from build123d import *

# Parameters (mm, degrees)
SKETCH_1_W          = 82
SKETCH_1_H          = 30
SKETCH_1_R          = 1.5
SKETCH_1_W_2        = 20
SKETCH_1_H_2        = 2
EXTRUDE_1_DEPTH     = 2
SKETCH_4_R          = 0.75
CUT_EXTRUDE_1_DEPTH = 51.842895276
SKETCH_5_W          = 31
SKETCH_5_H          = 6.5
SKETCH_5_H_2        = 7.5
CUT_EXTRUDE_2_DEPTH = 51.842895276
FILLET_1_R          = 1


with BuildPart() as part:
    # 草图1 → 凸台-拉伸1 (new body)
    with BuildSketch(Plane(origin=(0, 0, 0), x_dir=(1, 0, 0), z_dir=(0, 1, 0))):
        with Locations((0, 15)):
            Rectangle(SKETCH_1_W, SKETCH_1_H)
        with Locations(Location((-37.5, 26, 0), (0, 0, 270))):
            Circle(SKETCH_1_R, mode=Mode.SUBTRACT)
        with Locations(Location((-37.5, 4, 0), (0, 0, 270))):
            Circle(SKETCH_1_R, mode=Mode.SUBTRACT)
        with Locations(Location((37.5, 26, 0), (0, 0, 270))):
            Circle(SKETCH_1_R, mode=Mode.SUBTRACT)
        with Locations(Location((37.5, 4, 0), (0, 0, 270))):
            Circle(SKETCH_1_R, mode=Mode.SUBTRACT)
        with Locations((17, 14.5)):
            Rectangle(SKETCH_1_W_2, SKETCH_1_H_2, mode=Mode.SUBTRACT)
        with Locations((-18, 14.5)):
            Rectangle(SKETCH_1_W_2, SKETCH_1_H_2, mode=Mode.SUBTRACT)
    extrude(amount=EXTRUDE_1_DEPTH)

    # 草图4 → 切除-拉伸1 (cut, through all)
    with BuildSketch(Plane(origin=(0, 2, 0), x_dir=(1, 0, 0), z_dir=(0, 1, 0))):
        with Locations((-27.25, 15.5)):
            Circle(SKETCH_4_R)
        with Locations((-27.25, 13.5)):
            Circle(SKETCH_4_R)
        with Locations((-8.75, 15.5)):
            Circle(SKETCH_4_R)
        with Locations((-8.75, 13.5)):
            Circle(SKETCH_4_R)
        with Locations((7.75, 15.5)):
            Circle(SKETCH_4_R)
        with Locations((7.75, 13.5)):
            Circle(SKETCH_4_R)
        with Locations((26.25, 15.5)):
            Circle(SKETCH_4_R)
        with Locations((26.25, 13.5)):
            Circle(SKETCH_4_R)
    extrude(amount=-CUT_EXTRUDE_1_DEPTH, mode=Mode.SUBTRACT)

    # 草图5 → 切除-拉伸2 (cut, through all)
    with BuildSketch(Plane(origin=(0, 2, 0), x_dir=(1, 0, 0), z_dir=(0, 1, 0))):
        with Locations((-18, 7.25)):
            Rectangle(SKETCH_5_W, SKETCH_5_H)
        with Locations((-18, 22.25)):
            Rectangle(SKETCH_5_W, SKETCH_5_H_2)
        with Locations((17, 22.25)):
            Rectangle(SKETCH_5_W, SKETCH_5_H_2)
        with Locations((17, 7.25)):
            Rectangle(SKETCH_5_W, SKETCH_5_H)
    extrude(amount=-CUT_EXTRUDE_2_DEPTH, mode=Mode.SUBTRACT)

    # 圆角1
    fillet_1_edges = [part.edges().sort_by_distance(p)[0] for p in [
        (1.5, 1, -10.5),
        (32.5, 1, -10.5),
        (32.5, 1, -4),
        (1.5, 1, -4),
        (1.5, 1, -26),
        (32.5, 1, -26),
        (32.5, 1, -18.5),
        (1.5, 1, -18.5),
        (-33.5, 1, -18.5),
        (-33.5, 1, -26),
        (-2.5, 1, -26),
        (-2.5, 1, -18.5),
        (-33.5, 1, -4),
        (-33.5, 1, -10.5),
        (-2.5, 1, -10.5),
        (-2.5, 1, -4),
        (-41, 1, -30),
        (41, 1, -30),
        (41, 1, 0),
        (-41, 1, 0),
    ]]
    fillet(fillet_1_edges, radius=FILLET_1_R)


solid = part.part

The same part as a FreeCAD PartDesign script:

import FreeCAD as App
import Part
import Sketcher

V = App.Vector
Q = App.Units.Quantity


def edges_at(feature, points):
    """Names of the edges that pass closest to the given points."""
    edges = feature.Shape.Edges
    near = lambda p: min(range(len(edges)), key=lambda i: edges[i].distToShape(Part.Vertex(*p))[0])
    return sorted({f"Edge{near(p) + 1}" for p in points})

doc = App.newDocument("Part")
body = doc.addObject("PartDesign::Body", "Body")

sketch1 = body.newObject("Sketcher::SketchObject", "Sketch")
sketch1.AttachmentSupport = (doc.getObject("XZ_Plane"), [""])
sketch1.MapMode = "FlatFace"
sketch1.addGeometry(Part.LineSegment(V(-41, -30, 0), V(-41, 0, 0)), False)
sketch1.addGeometry(Part.LineSegment(V(-41, 0, 0), V(41, 0, 0)), False)
sketch1.addGeometry(Part.LineSegment(V(41, 0, 0), V(41, -30, 0)), False)
sketch1.addGeometry(Part.LineSegment(V(41, -30, 0), V(-41, -30, 0)), False)
sketch1.addGeometry(Part.Circle(V(-37.5, -4, 0), V(0, 0, 1), 1.5), False)
sketch1.addGeometry(Part.LineSegment(V(-8, -13.5, 0), V(-28, -13.5, 0)), False)
sketch1.addGeometry(Part.LineSegment(V(-28, -13.5, 0), V(-28, -15.5, 0)), False)
sketch1.addGeometry(Part.LineSegment(V(-28, -15.5, 0), V(-8, -15.5, 0)), False)
sketch1.addGeometry(Part.LineSegment(V(-8, -15.5, 0), V(-8, -13.5, 0)), False)
sketch1.addGeometry(Part.Circle(V(37.5, -4, 0), V(0, 0, 1), 1.5), False)
sketch1.addGeometry(Part.LineSegment(V(27, -13.5, 0), V(7, -13.5, 0)), False)
sketch1.addGeometry(Part.LineSegment(V(7, -13.5, 0), V(7, -15.5, 0)), False)
sketch1.addGeometry(Part.LineSegment(V(7, -15.5, 0), V(27, -15.5, 0)), False)
sketch1.addGeometry(Part.LineSegment(V(27, -15.5, 0), V(27, -13.5, 0)), False)
sketch1.addGeometry(Part.Circle(V(-37.5, -26, 0), V(0, 0, 1), 1.5), False)
sketch1.addGeometry(Part.Circle(V(37.5, -26, 0), V(0, 0, 1), 1.5), False)
sketch1.addConstraint(Sketcher.Constraint("Coincident", 0, 2, 1, 1))
sketch1.addConstraint(Sketcher.Constraint("Coincident", 1, 2, 2, 1))
sketch1.addConstraint(Sketcher.Constraint("Coincident", 2, 2, 3, 1))
sketch1.addConstraint(Sketcher.Constraint("Coincident", 3, 2, 0, 1))
sketch1.addConstraint(Sketcher.Constraint("Coincident", 5, 2, 6, 1))
sketch1.addConstraint(Sketcher.Constraint("Coincident", 6, 2, 7, 1))
sketch1.addConstraint(Sketcher.Constraint("Coincident", 7, 2, 8, 1))
sketch1.addConstraint(Sketcher.Constraint("Coincident", 8, 2, 5, 1))
sketch1.addConstraint(Sketcher.Constraint("Coincident", 10, 2, 11, 1))
sketch1.addConstraint(Sketcher.Constraint("Coincident", 11, 2, 12, 1))
sketch1.addConstraint(Sketcher.Constraint("Coincident", 12, 2, 13, 1))
sketch1.addConstraint(Sketcher.Constraint("Coincident", 13, 2, 10, 1))
sketch1.addConstraint(Sketcher.Constraint("Vertical", 0))
sketch1.addConstraint(Sketcher.Constraint("Horizontal", 1))
sketch1.addConstraint(Sketcher.Constraint("Vertical", 2))
sketch1.addConstraint(Sketcher.Constraint("Horizontal", 3))
sketch1.addConstraint(Sketcher.Constraint("Horizontal", 5))
sketch1.addConstraint(Sketcher.Constraint("Vertical", 6))
sketch1.addConstraint(Sketcher.Constraint("Horizontal", 7))
sketch1.addConstraint(Sketcher.Constraint("Vertical", 8))
sketch1.addConstraint(Sketcher.Constraint("Horizontal", 10))
sketch1.addConstraint(Sketcher.Constraint("Vertical", 11))
sketch1.addConstraint(Sketcher.Constraint("Horizontal", 12))
sketch1.addConstraint(Sketcher.Constraint("Vertical", 13))
sketch1.addConstraint(Sketcher.Constraint("Equal", 4, 9))
sketch1.addConstraint(Sketcher.Constraint("Equal", 9, 14))
sketch1.addConstraint(Sketcher.Constraint("Equal", 14, 15))
sketch1.addConstraint(Sketcher.Constraint("Symmetric", 0, 2, 1, 2, -1, 1))
sketch1.addConstraint(Sketcher.Constraint("Symmetric", 4, 3, 9, 3, -2))
sketch1.addConstraint(Sketcher.Constraint("Symmetric", 14, 3, 15, 3, -2))
sketch1.addConstraint(Sketcher.Constraint("Horizontal", 8, 2, 10, 2))
sketch1.addConstraint(Sketcher.Constraint("Horizontal", 7, 2, 11, 2))
sketch1.addConstraint(Sketcher.Constraint("Vertical", 4, 3, 14, 3))
sketch1.addConstraint(Sketcher.Constraint("Equal", 7, 10))
sketch1.addConstraint(Sketcher.Constraint("Diameter", 4, Q("3 mm")))
sketch1.addConstraint(Sketcher.Constraint("DistanceX", 1, 1, 1, 2, Q("82 mm")))
sketch1.addConstraint(Sketcher.Constraint("DistanceX", 5, 2, 5, 1, Q("20 mm")))
sketch1.addConstraint(Sketcher.Constraint("DistanceY", 0, 1, 0, 2, Q("30 mm")))
sketch1.addConstraint(Sketcher.Constraint("DistanceY", 6, 2, 6, 1, Q("2 mm")))
sketch1.addConstraint(Sketcher.Constraint("DistanceY", 4, 3, -1, 1, Q("4 mm")))
sketch1.addConstraint(Sketcher.Constraint("DistanceY", 14, 3, -1, 1, Q("26 mm")))
sketch1.addConstraint(Sketcher.Constraint("DistanceX", 5, 2, -1, 1, Q("28 mm")))
sketch1.addConstraint(Sketcher.Constraint("DistanceX", -1, 1, 10, 2, Q("7 mm")))
sketch1.addConstraint(Sketcher.Constraint("DistanceX", 4, 3, 9, 3, Q("75 mm")))
sketch1.addConstraint(Sketcher.Constraint("DistanceY", 5, 2, -1, 1, Q("13.5 mm")))
pad1 = body.newObject("PartDesign::Pad", "Pad")
pad1.Profile = sketch1
pad1.Length = 2
pad1.Reversed = True

sketch2 = body.newObject("Sketcher::SketchObject", "Sketch001")
sketch2.AttachmentSupport = (doc.getObject("XZ_Plane"), [""])
sketch2.MapMode = "FlatFace"
sketch2.AttachmentOffset = App.Placement(V(0, 0, -2), App.Rotation())
sketch2.addGeometry(Part.Circle(V(-27.2, -15.5, 0), V(0, 0, 1), 0.8), False)
sketch2.addGeometry(Part.Circle(V(-27.2, -13.5, 0), V(0, 0, 1), 0.8), False)
sketch2.addGeometry(Part.Circle(V(-8.8, -15.5, 0), V(0, 0, 1), 0.8), False)
sketch2.addGeometry(Part.Circle(V(-8.8, -13.5, 0), V(0, 0, 1), 0.8), False)
sketch2.addGeometry(Part.Circle(V(7.8, -15.5, 0), V(0, 0, 1), 0.8), False)
sketch2.addGeometry(Part.Circle(V(7.8, -13.5, 0), V(0, 0, 1), 0.8), False)
sketch2.addGeometry(Part.Circle(V(26.2, -15.5, 0), V(0, 0, 1), 0.8), False)
sketch2.addGeometry(Part.Circle(V(26.2, -13.5, 0), V(0, 0, 1), 0.8), False)
sketch2.addConstraint(Sketcher.Constraint("Equal", 0, 1))
sketch2.addConstraint(Sketcher.Constraint("Equal", 1, 2))
sketch2.addConstraint(Sketcher.Constraint("Equal", 2, 3))
sketch2.addConstraint(Sketcher.Constraint("Equal", 3, 4))
sketch2.addConstraint(Sketcher.Constraint("Equal", 4, 5))
sketch2.addConstraint(Sketcher.Constraint("Equal", 5, 6))
sketch2.addConstraint(Sketcher.Constraint("Equal", 6, 7))
sketch2.addConstraint(Sketcher.Constraint("Horizontal", 0, 3, 2, 3))
sketch2.addConstraint(Sketcher.Constraint("Horizontal", 1, 3, 3, 3))
sketch2.addConstraint(Sketcher.Constraint("Horizontal", 2, 3, 4, 3))
sketch2.addConstraint(Sketcher.Constraint("Horizontal", 3, 3, 5, 3))
sketch2.addConstraint(Sketcher.Constraint("Horizontal", 4, 3, 6, 3))
sketch2.addConstraint(Sketcher.Constraint("Horizontal", 5, 3, 7, 3))
sketch2.addConstraint(Sketcher.Constraint("Vertical", 0, 3, 1, 3))
sketch2.addConstraint(Sketcher.Constraint("Vertical", 2, 3, 3, 3))
sketch2.addConstraint(Sketcher.Constraint("Vertical", 4, 3, 5, 3))
sketch2.addConstraint(Sketcher.Constraint("Vertical", 6, 3, 7, 3))
sketch2.addConstraint(Sketcher.Constraint("Diameter", 0, Q("1.5 mm")))
sketch2.addConstraint(Sketcher.Constraint("DistanceY", 0, 3, 1, 3, Q("2 mm")))
sketch2.addConstraint(Sketcher.Constraint("DistanceX", 0, 3, 4, 3, Q("35 mm")))
sketch2.addConstraint(Sketcher.Constraint("DistanceX", 2, 3, 6, 3, Q("35 mm")))
sketch2.addConstraint(Sketcher.Constraint("DistanceY", 0, 3, -1, 1, Q("15.5 mm")))
sketch2.addConstraint(Sketcher.Constraint("DistanceX", 0, 3, 2, 3, Q("18.5 mm")))
sketch2.addConstraint(Sketcher.Constraint("DistanceX", 0, 3, -1, 1, Q("27.25 mm")))
pocket1 = body.newObject("PartDesign::Pocket", "Pocket")
pocket1.Profile = sketch2
pocket1.Type = "ThroughAll"
pocket1.Reversed = True

sketch3 = body.newObject("Sketcher::SketchObject", "Sketch002")
sketch3.AttachmentSupport = (doc.getObject("XZ_Plane"), [""])
sketch3.MapMode = "FlatFace"
sketch3.AttachmentOffset = App.Placement(V(0, 0, -2), App.Rotation())
sketch3.addGeometry(Part.LineSegment(V(-34, -10, 0), V(-34, -4, 0)), False)
sketch3.addGeometry(Part.LineSegment(V(-34, -4, 0), V(-2, -4, 0)), False)
sketch3.addGeometry(Part.LineSegment(V(-2, -4, 0), V(-2, -10, 0)), False)
sketch3.addGeometry(Part.LineSegment(V(-2, -10, 0), V(-34, -10, 0)), False)
sketch3.addGeometry(Part.LineSegment(V(-34, -26, 0), V(-34, -18, 0)), False)
sketch3.addGeometry(Part.LineSegment(V(-34, -18, 0), V(-2, -18, 0)), False)
sketch3.addGeometry(Part.LineSegment(V(-2, -18, 0), V(-2, -26, 0)), False)
sketch3.addGeometry(Part.LineSegment(V(-2, -26, 0), V(-34, -26, 0)), False)
sketch3.addGeometry(Part.LineSegment(V(2, -26, 0), V(2, -18, 0)), False)
sketch3.addGeometry(Part.LineSegment(V(2, -18, 0), V(32, -18, 0)), False)
sketch3.addGeometry(Part.LineSegment(V(32, -18, 0), V(32, -26, 0)), False)
sketch3.addGeometry(Part.LineSegment(V(32, -26, 0), V(2, -26, 0)), False)
sketch3.addGeometry(Part.LineSegment(V(2, -10, 0), V(2, -4, 0)), False)
sketch3.addGeometry(Part.LineSegment(V(2, -4, 0), V(32, -4, 0)), False)
sketch3.addGeometry(Part.LineSegment(V(32, -4, 0), V(32, -10, 0)), False)
sketch3.addGeometry(Part.LineSegment(V(32, -10, 0), V(2, -10, 0)), False)
sketch3.addConstraint(Sketcher.Constraint("Coincident", 0, 2, 1, 1))
sketch3.addConstraint(Sketcher.Constraint("Coincident", 1, 2, 2, 1))
sketch3.addConstraint(Sketcher.Constraint("Coincident", 2, 2, 3, 1))
sketch3.addConstraint(Sketcher.Constraint("Coincident", 3, 2, 0, 1))
sketch3.addConstraint(Sketcher.Constraint("Coincident", 4, 2, 5, 1))
sketch3.addConstraint(Sketcher.Constraint("Coincident", 5, 2, 6, 1))
sketch3.addConstraint(Sketcher.Constraint("Coincident", 6, 2, 7, 1))
sketch3.addConstraint(Sketcher.Constraint("Coincident", 7, 2, 4, 1))
sketch3.addConstraint(Sketcher.Constraint("Coincident", 8, 2, 9, 1))
sketch3.addConstraint(Sketcher.Constraint("Coincident", 9, 2, 10, 1))
sketch3.addConstraint(Sketcher.Constraint("Coincident", 10, 2, 11, 1))
sketch3.addConstraint(Sketcher.Constraint("Coincident", 11, 2, 8, 1))
sketch3.addConstraint(Sketcher.Constraint("Coincident", 12, 2, 13, 1))
sketch3.addConstraint(Sketcher.Constraint("Coincident", 13, 2, 14, 1))
sketch3.addConstraint(Sketcher.Constraint("Coincident", 14, 2, 15, 1))
sketch3.addConstraint(Sketcher.Constraint("Coincident", 15, 2, 12, 1))
sketch3.addConstraint(Sketcher.Constraint("Vertical", 0))
sketch3.addConstraint(Sketcher.Constraint("Horizontal", 1))
sketch3.addConstraint(Sketcher.Constraint("Vertical", 2))
sketch3.addConstraint(Sketcher.Constraint("Horizontal", 3))
sketch3.addConstraint(Sketcher.Constraint("Vertical", 4))
sketch3.addConstraint(Sketcher.Constraint("Horizontal", 5))
sketch3.addConstraint(Sketcher.Constraint("Vertical", 6))
sketch3.addConstraint(Sketcher.Constraint("Horizontal", 7))
sketch3.addConstraint(Sketcher.Constraint("Vertical", 8))
sketch3.addConstraint(Sketcher.Constraint("Horizontal", 9))
sketch3.addConstraint(Sketcher.Constraint("Vertical", 10))
sketch3.addConstraint(Sketcher.Constraint("Horizontal", 11))
sketch3.addConstraint(Sketcher.Constraint("Vertical", 12))
sketch3.addConstraint(Sketcher.Constraint("Horizontal", 13))
sketch3.addConstraint(Sketcher.Constraint("Vertical", 14))
sketch3.addConstraint(Sketcher.Constraint("Horizontal", 15))
sketch3.addConstraint(Sketcher.Constraint("Horizontal", 5, 2, 8, 2))
sketch3.addConstraint(Sketcher.Constraint("Horizontal", 7, 2, 10, 2))
sketch3.addConstraint(Sketcher.Constraint("Horizontal", 1, 2, 12, 2))
sketch3.addConstraint(Sketcher.Constraint("Horizontal", 3, 2, 14, 2))
sketch3.addConstraint(Sketcher.Constraint("Vertical", 3, 2, 4, 2))
sketch3.addConstraint(Sketcher.Constraint("Vertical", 2, 2, 5, 2))
sketch3.addConstraint(Sketcher.Constraint("Vertical", 11, 2, 12, 2))
sketch3.addConstraint(Sketcher.Constraint("Vertical", 10, 2, 13, 2))
sketch3.addConstraint(Sketcher.Constraint("Equal", 7, 9))
sketch3.addConstraint(Sketcher.Constraint("DistanceX", 1, 1, 1, 2, Q("31 mm")))
sketch3.addConstraint(Sketcher.Constraint("DistanceY", 0, 1, 0, 2, Q("6.5 mm")))
sketch3.addConstraint(Sketcher.Constraint("DistanceY", 4, 1, 4, 2, Q("7.5 mm")))
sketch3.addConstraint(Sketcher.Constraint("DistanceY", 0, 2, -1, 1, Q("4 mm")))
sketch3.addConstraint(Sketcher.Constraint("DistanceY", 6, 2, -1, 1, Q("26 mm")))
sketch3.addConstraint(Sketcher.Constraint("DistanceX", 5, 2, 8, 2, Q("4 mm")))
sketch3.addConstraint(Sketcher.Constraint("DistanceX", 0, 2, -1, 1, Q("33.5 mm")))
pocket2 = body.newObject("PartDesign::Pocket", "Pocket001")
pocket2.Profile = sketch3
pocket2.Type = "ThroughAll"
pocket2.Reversed = True
doc.recompute()

fillet = body.newObject("PartDesign::Fillet", "Fillet")
fillet.Base = (pocket2, edges_at(pocket2, [
    (1.5, 1, -10.5),
    (32.5, 1, -10.5),
    (32.5, 1, -4),
    (1.5, 1, -4),
    (1.5, 1, -26),
    (32.5, 1, -26),
    (32.5, 1, -18.5),
    (1.5, 1, -18.5),
    (-33.5, 1, -18.5),
    (-33.5, 1, -26),
    (-2.5, 1, -26),
    (-2.5, 1, -18.5),
    (-33.5, 1, -4),
    (-33.5, 1, -10.5),
    (-2.5, 1, -10.5),
    (-2.5, 1, -4),
    (-41, 1, -30),
    (41, 1, -30),
    (41, 1, 0),
    (-41, 1, 0),
]))
fillet.Radius = 1

doc.recompute()
